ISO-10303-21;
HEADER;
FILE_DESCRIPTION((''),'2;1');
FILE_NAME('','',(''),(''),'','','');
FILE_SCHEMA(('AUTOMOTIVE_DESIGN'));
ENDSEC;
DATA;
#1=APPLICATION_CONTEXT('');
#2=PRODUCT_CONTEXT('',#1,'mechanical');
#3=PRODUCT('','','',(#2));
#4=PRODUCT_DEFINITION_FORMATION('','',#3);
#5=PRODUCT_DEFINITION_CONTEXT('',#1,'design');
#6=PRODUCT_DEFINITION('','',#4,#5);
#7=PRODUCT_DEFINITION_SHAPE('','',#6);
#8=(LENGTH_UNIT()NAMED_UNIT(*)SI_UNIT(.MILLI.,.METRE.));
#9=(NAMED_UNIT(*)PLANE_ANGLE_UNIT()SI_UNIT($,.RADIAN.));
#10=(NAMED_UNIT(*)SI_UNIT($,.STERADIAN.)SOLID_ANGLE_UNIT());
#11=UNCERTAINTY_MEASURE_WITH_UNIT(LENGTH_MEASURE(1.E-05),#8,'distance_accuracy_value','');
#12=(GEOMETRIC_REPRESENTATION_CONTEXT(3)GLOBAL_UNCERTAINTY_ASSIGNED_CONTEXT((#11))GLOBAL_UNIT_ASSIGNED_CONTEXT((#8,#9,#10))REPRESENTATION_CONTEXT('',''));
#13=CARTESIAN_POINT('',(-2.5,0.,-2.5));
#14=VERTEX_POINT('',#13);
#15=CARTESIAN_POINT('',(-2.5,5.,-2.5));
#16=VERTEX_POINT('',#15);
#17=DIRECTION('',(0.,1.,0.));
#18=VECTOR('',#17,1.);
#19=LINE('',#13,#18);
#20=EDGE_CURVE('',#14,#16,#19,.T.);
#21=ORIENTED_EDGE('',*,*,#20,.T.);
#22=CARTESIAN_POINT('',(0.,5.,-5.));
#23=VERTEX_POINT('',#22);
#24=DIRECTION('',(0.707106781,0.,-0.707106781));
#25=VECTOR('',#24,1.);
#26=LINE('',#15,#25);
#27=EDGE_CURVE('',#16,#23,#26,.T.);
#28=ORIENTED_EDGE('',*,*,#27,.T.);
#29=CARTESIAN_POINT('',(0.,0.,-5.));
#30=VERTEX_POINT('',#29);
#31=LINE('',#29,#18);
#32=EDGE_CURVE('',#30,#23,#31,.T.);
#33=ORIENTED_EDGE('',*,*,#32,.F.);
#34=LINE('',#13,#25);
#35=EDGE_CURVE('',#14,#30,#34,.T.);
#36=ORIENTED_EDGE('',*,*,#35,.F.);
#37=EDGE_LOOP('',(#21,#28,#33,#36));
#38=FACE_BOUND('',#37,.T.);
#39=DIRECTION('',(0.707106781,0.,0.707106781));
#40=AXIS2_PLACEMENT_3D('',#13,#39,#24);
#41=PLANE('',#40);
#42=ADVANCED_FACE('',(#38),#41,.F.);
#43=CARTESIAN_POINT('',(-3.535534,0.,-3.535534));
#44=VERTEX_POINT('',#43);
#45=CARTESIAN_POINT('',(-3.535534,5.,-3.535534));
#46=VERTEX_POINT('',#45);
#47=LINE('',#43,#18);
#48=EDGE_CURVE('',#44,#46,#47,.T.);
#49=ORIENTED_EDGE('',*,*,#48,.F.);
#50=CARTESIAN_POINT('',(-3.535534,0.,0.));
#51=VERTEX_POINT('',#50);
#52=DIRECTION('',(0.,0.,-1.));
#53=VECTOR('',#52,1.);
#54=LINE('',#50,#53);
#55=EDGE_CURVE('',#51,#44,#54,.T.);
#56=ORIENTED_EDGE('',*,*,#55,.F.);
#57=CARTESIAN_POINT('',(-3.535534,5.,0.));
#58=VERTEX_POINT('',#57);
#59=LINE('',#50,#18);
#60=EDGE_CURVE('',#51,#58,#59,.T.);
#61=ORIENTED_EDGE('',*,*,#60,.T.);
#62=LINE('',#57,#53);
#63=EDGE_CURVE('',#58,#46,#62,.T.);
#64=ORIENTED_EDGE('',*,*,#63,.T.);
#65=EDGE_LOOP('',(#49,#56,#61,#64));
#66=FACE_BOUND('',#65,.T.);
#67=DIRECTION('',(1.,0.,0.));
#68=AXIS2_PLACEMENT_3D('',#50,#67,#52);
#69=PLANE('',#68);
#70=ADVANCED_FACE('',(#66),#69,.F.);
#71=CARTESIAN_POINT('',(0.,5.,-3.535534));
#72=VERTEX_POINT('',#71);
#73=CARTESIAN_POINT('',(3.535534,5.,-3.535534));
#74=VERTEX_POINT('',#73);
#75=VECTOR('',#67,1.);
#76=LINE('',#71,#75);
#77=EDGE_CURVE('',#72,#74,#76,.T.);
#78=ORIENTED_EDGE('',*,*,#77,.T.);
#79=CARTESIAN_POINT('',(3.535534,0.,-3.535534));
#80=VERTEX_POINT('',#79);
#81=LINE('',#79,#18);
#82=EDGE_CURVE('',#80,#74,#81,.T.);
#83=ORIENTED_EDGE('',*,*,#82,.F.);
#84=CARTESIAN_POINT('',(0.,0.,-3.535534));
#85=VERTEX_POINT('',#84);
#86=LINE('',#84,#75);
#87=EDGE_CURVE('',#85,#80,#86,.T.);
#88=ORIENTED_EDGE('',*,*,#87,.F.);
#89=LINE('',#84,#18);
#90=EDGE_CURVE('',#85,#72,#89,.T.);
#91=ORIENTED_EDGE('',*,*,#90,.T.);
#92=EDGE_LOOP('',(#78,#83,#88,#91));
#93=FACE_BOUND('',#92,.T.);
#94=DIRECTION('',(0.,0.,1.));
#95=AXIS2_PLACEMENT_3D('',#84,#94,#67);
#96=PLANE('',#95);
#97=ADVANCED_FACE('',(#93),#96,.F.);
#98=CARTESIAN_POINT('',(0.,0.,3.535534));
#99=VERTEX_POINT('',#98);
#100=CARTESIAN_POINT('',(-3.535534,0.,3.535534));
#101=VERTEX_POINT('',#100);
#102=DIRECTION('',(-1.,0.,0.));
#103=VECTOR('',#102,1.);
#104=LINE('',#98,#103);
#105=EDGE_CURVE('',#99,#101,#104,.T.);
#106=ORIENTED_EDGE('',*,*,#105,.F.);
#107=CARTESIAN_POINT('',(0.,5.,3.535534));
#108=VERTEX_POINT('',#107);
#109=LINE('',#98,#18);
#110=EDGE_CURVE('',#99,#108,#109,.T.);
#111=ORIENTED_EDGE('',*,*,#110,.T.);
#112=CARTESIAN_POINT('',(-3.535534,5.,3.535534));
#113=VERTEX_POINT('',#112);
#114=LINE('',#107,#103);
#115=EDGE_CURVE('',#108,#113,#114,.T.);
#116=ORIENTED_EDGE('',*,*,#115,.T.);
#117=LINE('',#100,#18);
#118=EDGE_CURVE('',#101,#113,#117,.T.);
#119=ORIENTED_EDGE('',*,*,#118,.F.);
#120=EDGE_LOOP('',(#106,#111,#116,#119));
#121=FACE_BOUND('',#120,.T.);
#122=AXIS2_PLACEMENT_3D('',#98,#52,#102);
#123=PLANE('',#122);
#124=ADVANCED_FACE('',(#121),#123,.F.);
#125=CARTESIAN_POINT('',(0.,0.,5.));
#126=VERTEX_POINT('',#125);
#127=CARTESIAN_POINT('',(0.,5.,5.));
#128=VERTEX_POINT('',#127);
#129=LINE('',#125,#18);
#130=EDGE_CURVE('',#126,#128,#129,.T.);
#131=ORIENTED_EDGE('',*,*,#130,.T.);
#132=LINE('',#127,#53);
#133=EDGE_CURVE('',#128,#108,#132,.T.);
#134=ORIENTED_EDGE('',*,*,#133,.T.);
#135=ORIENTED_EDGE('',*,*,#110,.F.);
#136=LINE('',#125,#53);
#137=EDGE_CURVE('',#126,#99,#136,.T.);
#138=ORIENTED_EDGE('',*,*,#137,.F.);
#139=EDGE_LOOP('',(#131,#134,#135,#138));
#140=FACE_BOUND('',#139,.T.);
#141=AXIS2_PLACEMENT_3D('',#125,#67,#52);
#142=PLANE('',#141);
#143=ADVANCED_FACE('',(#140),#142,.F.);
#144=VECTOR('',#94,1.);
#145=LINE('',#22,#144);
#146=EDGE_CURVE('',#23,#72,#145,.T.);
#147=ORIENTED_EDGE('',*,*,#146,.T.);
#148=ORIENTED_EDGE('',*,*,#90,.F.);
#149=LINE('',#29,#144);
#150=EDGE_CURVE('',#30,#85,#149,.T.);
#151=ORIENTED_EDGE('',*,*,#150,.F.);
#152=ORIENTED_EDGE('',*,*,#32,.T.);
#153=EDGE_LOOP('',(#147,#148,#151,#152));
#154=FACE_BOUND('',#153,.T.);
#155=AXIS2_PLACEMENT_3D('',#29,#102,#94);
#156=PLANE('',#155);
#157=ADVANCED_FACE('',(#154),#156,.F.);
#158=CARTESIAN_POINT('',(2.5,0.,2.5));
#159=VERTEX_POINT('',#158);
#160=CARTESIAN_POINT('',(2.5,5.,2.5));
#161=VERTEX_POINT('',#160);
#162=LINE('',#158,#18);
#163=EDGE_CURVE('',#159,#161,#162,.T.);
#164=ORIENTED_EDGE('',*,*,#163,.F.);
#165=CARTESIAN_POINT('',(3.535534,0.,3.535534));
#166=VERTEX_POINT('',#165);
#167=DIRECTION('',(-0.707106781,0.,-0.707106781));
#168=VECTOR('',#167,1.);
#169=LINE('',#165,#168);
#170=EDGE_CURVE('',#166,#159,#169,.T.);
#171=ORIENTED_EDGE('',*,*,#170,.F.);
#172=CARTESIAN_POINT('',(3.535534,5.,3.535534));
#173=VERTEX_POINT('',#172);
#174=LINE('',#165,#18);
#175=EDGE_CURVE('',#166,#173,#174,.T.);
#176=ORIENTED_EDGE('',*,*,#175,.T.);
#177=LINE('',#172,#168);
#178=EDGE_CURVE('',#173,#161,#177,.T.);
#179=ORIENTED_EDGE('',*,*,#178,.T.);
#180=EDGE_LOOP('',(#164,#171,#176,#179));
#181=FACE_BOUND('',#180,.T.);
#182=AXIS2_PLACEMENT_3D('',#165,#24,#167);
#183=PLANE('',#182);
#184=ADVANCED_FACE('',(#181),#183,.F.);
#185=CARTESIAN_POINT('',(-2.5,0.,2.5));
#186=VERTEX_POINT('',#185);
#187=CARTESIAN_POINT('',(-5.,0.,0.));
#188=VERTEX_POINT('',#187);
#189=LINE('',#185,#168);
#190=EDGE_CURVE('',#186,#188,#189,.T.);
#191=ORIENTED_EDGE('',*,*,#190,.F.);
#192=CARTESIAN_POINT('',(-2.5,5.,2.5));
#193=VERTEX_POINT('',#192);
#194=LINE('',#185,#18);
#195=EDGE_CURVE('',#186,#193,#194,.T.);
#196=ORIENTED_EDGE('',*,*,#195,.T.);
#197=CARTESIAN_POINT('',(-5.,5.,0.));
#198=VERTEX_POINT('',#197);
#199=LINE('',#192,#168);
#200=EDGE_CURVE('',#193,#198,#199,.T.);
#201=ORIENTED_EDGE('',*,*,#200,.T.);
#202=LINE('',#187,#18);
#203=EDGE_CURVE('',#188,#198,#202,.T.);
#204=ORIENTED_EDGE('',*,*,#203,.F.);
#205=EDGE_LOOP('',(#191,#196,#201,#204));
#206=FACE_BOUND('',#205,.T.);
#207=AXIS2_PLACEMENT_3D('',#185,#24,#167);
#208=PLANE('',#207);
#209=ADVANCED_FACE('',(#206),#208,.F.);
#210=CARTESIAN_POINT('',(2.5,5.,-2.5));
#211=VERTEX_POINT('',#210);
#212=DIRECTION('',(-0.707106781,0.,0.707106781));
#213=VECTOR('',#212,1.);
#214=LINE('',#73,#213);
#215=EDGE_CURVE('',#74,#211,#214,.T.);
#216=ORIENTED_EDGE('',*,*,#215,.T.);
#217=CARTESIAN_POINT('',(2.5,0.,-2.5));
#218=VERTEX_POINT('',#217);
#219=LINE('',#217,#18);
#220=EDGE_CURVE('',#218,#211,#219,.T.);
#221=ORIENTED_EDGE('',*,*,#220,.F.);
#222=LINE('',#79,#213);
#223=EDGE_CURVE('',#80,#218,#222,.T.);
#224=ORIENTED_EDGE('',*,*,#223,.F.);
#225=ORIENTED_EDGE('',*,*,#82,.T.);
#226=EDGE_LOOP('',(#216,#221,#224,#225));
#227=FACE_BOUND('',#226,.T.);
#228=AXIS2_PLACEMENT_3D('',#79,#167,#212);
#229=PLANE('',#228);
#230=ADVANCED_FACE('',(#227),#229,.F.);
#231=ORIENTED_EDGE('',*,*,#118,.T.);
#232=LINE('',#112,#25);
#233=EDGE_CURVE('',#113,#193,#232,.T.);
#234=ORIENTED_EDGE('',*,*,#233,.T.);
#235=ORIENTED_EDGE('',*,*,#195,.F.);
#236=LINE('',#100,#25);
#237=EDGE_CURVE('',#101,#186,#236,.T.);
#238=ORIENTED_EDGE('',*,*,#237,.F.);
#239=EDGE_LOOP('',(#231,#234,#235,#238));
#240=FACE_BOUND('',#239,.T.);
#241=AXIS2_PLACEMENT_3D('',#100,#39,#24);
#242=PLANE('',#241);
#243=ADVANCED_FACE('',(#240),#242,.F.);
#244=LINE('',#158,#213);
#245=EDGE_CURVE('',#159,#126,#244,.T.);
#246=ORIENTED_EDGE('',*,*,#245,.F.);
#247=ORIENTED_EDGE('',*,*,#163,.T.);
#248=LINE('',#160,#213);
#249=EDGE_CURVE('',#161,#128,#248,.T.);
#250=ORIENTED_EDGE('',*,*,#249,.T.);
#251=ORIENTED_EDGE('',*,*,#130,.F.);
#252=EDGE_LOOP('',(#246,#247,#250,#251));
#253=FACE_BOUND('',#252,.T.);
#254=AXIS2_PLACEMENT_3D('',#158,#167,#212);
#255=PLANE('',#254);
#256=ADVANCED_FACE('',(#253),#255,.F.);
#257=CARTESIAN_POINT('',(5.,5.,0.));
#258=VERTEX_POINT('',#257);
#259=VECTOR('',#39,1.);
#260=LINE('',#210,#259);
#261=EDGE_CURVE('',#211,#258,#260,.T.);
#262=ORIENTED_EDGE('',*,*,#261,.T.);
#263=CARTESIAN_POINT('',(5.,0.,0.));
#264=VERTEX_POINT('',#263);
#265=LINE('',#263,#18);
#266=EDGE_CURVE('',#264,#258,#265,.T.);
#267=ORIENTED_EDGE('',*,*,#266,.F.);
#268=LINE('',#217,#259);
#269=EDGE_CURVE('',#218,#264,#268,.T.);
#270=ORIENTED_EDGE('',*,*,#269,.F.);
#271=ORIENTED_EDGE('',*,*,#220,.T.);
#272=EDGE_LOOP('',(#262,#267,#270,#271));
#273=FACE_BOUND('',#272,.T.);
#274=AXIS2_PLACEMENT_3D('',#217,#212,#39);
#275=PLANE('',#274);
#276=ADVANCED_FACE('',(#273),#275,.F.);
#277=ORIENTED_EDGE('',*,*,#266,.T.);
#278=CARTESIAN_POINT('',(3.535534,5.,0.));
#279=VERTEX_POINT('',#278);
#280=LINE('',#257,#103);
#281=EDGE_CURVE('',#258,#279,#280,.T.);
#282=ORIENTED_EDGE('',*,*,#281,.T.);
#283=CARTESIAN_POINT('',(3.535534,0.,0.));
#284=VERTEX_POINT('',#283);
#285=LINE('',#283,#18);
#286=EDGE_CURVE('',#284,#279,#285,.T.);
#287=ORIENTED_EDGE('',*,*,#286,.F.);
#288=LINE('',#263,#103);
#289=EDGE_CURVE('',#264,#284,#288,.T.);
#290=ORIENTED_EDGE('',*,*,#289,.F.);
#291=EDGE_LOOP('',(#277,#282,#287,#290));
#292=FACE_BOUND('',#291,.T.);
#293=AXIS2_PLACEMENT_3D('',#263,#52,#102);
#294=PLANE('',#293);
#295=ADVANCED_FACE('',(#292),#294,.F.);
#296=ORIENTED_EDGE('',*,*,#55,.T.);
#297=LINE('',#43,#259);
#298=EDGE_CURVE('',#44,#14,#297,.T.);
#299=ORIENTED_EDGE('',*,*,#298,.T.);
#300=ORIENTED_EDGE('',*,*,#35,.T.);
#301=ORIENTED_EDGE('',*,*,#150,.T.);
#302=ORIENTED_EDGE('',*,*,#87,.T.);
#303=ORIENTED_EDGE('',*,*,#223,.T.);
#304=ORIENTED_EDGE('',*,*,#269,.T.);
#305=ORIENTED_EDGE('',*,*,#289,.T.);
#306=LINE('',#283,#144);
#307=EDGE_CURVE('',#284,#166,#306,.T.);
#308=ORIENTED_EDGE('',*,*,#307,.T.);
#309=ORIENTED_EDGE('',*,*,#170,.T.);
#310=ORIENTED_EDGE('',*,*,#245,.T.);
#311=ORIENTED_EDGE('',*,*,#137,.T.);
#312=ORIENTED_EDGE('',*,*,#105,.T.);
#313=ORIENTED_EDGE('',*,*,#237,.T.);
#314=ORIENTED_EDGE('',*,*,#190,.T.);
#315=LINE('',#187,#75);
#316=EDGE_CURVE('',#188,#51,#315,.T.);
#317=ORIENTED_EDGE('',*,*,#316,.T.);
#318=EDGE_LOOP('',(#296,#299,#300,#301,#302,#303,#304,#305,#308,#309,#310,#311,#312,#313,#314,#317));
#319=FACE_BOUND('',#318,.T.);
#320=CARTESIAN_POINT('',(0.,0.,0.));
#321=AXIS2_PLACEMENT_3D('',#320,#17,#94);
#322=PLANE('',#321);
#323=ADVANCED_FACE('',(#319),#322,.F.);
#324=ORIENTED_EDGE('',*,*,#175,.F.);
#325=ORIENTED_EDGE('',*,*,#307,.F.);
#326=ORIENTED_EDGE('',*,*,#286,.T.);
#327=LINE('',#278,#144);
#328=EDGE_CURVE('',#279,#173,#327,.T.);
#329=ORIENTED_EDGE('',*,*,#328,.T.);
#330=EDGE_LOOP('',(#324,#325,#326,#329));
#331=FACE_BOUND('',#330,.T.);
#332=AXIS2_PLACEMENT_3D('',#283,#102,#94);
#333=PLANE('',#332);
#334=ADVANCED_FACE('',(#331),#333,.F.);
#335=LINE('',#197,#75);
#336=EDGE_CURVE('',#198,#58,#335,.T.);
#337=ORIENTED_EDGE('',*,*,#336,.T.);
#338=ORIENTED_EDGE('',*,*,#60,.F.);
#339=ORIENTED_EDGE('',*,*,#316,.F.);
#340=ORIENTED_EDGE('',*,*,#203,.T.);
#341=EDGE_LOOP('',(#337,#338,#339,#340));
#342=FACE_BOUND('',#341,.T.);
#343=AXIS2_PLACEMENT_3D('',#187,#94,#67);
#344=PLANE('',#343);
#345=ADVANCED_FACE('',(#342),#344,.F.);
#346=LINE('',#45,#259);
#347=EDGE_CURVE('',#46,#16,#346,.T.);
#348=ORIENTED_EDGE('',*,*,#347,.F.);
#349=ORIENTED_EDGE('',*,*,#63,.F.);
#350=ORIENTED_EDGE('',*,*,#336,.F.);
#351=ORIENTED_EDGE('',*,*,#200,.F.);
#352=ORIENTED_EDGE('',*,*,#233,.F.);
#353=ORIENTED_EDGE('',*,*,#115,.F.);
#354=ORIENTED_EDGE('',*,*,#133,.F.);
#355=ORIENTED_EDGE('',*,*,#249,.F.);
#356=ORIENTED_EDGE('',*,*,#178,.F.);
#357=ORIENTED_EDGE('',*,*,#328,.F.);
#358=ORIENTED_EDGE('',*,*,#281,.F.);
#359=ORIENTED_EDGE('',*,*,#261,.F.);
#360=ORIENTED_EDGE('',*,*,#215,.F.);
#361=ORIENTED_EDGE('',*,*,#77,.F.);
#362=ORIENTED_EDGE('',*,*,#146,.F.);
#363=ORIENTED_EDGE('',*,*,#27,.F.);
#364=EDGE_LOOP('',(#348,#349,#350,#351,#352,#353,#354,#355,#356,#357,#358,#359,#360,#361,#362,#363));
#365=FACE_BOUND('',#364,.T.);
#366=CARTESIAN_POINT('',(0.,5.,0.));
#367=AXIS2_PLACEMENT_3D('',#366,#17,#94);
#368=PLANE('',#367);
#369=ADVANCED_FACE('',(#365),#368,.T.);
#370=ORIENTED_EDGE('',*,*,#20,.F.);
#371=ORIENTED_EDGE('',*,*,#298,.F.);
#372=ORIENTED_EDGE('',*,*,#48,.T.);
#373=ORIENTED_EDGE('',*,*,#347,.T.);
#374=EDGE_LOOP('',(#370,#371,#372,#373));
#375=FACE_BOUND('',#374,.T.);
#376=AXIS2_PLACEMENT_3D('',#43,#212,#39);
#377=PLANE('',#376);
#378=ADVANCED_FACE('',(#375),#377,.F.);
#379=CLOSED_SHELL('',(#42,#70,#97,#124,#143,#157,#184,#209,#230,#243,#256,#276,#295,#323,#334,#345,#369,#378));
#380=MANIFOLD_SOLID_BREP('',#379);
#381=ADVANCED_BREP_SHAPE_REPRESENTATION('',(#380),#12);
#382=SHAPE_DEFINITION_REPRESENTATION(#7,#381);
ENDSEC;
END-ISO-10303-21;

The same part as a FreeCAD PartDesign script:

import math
import FreeCAD as App
import Part
import Sketcher

doc = App.newDocument("Part")
body = doc.addObject("PartDesign::Body", "Body")

sketch1 = body.newObject("Sketcher::SketchObject", "Sketch")
sketch1.AttachmentSupport = (doc.getObject("XZ_Plane"), [""])
sketch1.MapMode = "FlatFace"
sketch1.addGeometry(Part.Circle(App.Vector(0, 0, 0), App.Vector(0, 0, 1), 5), False)
sketch1.addConstraint(Sketcher.Constraint("Coincident", 0, 3, -1, 1))
sketch1.addConstraint(Sketcher.Constraint("Diameter", 0, 10.0))
pad1 = body.newObject("PartDesign::Pad", "Pad")
pad1.Profile = sketch1
pad1.Length = 5
pad1.Reversed = True

sketch2 = body.newObject("Sketcher::SketchObject", "Sketch001")
sketch2.AttachmentSupport = (doc.getObject("XZ_Plane"), [""])
sketch2.MapMode = "FlatFace"
sketch2.AttachmentOffset = App.Placement(App.Vector(0, 0, -5), App.Rotation())
sketch2.addGeometry(Part.LineSegment(App.Vector(0, -5, 0), App.Vector(0, -3.5, 0)), False)
sketch2.addGeometry(Part.LineSegment(App.Vector(0, -3.5, 0), App.Vector(3.5, -3.5, 0)), False)
sketch2.addGeometry(Part.ArcOfCircle(Part.Circle(App.Vector(0, 0, 0), App.Vector(0, 0, 1), 5), math.radians(-90), math.radians(-45)), False)
sketch2.addConstraint(Sketcher.Constraint("Coincident", 0, 2, 1, 1))
sketch2.addConstraint(Sketcher.Constraint("Coincident", 1, 2, 2, 2))
sketch2.addConstraint(Sketcher.Constraint("Coincident", 2, 1, 0, 1))
sketch2.addConstraint(Sketcher.Constraint("Vertical", 0))
sketch2.addConstraint(Sketcher.Constraint("Horizontal", 1))
sketch2.addConstraint(Sketcher.Constraint("Coincident", 2, 3, -1, 1))
sketch2.addConstraint(Sketcher.Constraint("PointOnObject", 0, 2, -2))
sketch2.addConstraint(Sketcher.Constraint("Radius", 2, 5.0))
sketch2.addConstraint(Sketcher.Constraint("DistanceX", 1, 1, 1, 2, 3.535534))
pocket1 = body.newObject("PartDesign::Pocket", "Pocket")
pocket1.Profile = sketch2
pocket1.Type = "ThroughAll"
pocket1.Reversed = True
doc.recompute()

polarpattern = body.newObject("PartDesign::PolarPattern", "PolarPattern")
polarpattern.Originals = [pocket1]
polarpattern.Axis = (doc.getObject("Y_Axis"), [""])
polarpattern.Angle = 360
polarpattern.Occurrences = 8
body.Tip = polarpattern

doc.recompute()
